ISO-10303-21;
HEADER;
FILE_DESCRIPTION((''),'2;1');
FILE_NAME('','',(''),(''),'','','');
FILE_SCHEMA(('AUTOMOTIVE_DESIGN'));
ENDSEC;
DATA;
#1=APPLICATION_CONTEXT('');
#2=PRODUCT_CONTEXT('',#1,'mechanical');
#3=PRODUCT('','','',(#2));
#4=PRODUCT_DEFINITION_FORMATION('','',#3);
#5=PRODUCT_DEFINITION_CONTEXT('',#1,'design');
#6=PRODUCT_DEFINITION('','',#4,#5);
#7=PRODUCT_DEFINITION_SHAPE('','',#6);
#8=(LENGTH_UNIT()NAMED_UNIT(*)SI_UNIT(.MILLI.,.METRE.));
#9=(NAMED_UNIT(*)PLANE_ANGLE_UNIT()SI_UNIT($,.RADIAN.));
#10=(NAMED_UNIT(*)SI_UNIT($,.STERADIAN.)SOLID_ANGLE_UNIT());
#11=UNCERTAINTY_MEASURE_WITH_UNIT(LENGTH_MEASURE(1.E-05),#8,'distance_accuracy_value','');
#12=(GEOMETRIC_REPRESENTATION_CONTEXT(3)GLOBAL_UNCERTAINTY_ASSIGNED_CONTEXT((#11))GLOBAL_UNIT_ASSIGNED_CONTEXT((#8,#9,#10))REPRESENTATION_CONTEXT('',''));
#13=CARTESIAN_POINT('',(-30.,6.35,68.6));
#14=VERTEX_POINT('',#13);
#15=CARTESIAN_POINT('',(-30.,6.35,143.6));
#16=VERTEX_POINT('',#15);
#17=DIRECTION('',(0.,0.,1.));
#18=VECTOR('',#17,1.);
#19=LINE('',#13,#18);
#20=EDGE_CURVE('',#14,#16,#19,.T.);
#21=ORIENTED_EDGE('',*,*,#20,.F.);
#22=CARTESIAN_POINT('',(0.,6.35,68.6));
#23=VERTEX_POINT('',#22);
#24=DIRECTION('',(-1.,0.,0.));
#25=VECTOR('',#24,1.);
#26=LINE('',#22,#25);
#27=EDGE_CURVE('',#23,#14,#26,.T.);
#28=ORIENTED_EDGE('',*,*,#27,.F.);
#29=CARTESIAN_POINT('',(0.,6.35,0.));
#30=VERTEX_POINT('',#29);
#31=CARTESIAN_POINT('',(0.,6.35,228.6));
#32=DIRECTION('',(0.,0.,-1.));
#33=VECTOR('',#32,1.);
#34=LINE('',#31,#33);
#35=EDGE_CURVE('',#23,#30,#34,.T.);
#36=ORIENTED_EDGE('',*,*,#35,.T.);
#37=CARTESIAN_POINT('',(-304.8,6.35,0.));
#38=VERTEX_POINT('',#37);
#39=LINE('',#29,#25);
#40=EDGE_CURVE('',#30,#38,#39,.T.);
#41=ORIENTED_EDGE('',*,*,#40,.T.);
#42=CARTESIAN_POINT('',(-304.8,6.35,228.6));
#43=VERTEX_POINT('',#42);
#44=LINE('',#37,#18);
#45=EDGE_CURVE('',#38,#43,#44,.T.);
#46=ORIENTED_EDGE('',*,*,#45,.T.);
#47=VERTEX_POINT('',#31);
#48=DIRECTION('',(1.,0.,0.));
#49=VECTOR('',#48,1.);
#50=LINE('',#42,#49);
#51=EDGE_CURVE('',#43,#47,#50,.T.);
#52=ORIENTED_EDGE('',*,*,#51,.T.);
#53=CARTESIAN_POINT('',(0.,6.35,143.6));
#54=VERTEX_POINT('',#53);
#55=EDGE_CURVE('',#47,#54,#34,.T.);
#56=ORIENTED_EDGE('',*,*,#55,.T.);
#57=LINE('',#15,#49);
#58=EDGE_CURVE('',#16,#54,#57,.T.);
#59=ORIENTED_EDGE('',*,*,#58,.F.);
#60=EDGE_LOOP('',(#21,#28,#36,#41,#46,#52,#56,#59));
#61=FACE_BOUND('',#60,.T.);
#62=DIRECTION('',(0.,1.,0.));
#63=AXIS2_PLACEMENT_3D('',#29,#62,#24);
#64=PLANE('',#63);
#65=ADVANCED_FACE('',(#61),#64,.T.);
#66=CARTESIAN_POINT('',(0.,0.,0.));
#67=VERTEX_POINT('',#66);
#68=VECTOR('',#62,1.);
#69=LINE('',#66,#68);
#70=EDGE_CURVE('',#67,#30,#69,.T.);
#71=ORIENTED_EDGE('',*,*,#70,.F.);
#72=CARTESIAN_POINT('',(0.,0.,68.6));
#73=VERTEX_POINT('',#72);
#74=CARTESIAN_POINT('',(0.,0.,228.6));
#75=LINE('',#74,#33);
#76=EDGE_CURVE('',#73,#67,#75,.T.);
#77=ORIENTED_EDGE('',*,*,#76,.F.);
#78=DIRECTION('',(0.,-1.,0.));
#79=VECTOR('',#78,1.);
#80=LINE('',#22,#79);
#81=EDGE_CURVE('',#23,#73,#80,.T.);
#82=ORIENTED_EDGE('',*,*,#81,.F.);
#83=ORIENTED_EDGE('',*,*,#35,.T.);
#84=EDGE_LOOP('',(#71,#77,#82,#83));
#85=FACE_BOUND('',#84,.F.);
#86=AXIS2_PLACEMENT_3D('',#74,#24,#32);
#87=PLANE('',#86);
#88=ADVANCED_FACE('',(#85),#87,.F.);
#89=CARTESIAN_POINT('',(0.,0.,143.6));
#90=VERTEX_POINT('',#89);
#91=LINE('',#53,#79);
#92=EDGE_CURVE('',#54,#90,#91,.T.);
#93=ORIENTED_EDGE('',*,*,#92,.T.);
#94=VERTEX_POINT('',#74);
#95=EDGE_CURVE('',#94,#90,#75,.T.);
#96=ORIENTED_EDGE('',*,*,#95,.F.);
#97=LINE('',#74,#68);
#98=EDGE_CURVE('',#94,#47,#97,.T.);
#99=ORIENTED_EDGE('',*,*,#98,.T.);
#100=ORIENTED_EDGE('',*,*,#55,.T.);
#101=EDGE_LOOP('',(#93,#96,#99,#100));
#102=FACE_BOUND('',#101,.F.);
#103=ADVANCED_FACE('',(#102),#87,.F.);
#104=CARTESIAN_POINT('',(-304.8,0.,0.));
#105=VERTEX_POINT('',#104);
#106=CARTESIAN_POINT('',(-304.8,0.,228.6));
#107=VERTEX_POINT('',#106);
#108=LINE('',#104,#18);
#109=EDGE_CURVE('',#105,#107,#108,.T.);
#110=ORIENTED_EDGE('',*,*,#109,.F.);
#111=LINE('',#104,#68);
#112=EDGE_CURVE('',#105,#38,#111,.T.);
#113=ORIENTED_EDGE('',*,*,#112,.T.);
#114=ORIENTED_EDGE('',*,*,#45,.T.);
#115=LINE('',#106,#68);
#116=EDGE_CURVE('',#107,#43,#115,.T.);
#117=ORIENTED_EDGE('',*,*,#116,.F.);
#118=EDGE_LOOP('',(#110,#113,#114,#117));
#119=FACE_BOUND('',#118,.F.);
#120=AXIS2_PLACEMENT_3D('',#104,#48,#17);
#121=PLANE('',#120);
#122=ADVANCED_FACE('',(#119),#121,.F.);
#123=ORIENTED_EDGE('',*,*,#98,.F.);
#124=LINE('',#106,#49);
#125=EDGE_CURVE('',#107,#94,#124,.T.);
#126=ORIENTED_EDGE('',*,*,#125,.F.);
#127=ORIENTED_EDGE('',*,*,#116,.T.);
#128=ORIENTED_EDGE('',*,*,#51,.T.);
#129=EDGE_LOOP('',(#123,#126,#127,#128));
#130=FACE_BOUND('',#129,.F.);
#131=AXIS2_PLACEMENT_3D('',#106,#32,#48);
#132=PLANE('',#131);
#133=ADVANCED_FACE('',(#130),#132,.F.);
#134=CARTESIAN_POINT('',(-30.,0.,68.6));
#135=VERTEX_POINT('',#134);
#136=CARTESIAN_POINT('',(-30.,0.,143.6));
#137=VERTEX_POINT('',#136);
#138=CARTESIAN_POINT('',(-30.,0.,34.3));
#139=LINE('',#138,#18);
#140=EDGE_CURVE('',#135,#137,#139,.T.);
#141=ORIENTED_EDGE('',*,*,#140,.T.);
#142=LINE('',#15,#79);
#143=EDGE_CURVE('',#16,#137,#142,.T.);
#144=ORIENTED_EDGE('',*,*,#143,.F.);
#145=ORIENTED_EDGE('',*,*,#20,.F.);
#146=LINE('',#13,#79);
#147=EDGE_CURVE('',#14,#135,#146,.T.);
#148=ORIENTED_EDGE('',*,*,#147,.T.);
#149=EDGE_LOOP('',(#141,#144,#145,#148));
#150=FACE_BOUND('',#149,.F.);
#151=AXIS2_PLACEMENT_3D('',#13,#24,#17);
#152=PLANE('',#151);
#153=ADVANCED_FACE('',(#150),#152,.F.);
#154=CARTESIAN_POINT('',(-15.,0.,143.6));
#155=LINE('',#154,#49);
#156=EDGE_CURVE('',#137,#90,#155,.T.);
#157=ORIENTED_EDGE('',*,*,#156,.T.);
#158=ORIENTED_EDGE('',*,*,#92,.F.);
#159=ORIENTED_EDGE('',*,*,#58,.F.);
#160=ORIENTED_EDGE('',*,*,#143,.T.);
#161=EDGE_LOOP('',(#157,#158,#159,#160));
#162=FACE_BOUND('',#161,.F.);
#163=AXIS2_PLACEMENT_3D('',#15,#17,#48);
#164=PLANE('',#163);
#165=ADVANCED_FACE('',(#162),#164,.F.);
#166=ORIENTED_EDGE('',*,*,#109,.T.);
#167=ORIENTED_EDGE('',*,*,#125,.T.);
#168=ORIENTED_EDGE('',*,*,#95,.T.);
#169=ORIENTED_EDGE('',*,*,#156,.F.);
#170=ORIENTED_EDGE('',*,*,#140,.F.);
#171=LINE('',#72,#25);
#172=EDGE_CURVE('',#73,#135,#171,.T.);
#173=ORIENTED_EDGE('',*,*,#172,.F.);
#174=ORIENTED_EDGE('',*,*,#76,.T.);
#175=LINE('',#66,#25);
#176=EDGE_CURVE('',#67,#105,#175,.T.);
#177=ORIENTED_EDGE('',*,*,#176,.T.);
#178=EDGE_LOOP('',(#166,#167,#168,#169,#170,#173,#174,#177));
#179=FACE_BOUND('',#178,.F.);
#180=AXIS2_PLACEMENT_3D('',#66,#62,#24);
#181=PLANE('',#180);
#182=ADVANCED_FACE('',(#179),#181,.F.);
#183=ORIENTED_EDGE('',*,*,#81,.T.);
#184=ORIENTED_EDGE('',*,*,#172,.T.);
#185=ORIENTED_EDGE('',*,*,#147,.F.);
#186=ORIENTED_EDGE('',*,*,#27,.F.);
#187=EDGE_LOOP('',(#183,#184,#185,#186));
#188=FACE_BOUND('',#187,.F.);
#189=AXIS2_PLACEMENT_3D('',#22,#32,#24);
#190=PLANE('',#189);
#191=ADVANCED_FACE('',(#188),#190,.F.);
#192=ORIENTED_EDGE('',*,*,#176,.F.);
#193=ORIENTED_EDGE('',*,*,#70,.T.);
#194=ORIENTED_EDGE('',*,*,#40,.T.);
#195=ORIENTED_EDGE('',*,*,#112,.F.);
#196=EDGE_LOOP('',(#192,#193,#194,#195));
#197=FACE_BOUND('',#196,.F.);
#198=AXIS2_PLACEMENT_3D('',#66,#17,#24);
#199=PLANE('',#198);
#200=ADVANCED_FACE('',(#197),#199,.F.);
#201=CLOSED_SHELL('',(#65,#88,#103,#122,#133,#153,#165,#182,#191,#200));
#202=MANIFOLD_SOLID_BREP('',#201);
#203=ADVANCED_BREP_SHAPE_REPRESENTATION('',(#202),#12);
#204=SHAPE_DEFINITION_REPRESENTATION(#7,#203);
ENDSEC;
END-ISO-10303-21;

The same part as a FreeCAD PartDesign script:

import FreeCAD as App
import Part
import Sketcher

V = App.Vector
Q = App.Units.Quantity

doc = App.newDocument("Part")
body = doc.addObject("PartDesign::Body", "Body")

# Sketch on XZ plane
sketch1 = body.newObject("Sketcher::SketchObject", "Sketch")
sketch1.AttachmentSupport = (doc.getObject("XZ_Plane"), [""])
sketch1.MapMode = "FlatFace"
sketch1.addGeometry([
    Part.LineSegment(V(0, 229, 0), V(0, 0, 0)),
    Part.LineSegment(V(0, 0, 0), V(-305, 0, 0)),
    Part.LineSegment(V(-305, 0, 0), V(-305, 229, 0)),
    Part.LineSegment(V(-305, 229, 0), V(0, 229, 0)),
], False)
sketch1.addConstraint([
    Sketcher.Constraint("Coincident", 0, 2, 1, 1),
    Sketcher.Constraint("Coincident", 1, 2, 2, 1),
    Sketcher.Constraint("Coincident", 2, 2, 3, 1),
    Sketcher.Constraint("Coincident", 3, 2, 0, 1),
    Sketcher.Constraint("Vertical", 0),
    Sketcher.Constraint("Horizontal", 1),
    Sketcher.Constraint("Vertical", 2),
    Sketcher.Constraint("Horizontal", 3),
    Sketcher.Constraint("Coincident", 0, 2, -1, 1),
    Sketcher.Constraint("DistanceX", 1, 2, 1, 1, Q("12 in")),
    Sketcher.Constraint("DistanceY", 0, 2, 0, 1, Q("9 in")),
])
pad1 = body.newObject("PartDesign::Pad", "Pad")
pad1.Profile = sketch1
pad1.Length = Q("0.25 in")
pad1.Reversed = True

# Sketch on XZ plane
sketch2 = body.newObject("Sketcher::SketchObject", "Sketch001")
sketch2.AttachmentSupport = (doc.getObject("XZ_Plane"), [""])
sketch2.MapMode = "FlatFace"
sketch2.AttachmentOffset = App.Placement(V(0, 0, -0.25 * 25.4), App.Rotation())
sketch2.addGeometry([
    Part.LineSegment(V(-30, 144, 0), V(0, 144, 0)),
    Part.LineSegment(V(0, 144, 0), V(0, 69, 0)),
    Part.LineSegment(V(0, 69, 0), V(-30, 69, 0)),
    Part.LineSegment(V(-30, 69, 0), V(-30, 144, 0)),
], False)
sketch2.addConstraint([
    Sketcher.Constraint("Coincident", 0, 2, 1, 1),
    Sketcher.Constraint("Coincident", 1, 2, 2, 1),
    Sketcher.Constraint("Coincident", 2, 2, 3, 1),
    Sketcher.Constraint("Coincident", 3, 2, 0, 1),
    Sketcher.Constraint("Horizontal", 0),
    Sketcher.Constraint("Vertical", 1),
    Sketcher.Constraint("Horizontal", 2),
    Sketcher.Constraint("Vertical", 3),
    Sketcher.Constraint("PointOnObject", 0, 2, -2),
    Sketcher.Constraint("DistanceX", 0, 1, 0, 2, Q("1.1811 in")),
    Sketcher.Constraint("DistanceY", 1, 2, 1, 1, Q("75 mm")),
    Sketcher.Constraint("DistanceY", -1, 1, 0, 2, Q("143.6 mm")),
])
pocket1 = body.newObject("PartDesign::Pocket", "Pocket")
pocket1.Profile = sketch2
pocket1.Length = Q("0.3937008 in")
pocket1.Reversed = True

doc.recompute()
